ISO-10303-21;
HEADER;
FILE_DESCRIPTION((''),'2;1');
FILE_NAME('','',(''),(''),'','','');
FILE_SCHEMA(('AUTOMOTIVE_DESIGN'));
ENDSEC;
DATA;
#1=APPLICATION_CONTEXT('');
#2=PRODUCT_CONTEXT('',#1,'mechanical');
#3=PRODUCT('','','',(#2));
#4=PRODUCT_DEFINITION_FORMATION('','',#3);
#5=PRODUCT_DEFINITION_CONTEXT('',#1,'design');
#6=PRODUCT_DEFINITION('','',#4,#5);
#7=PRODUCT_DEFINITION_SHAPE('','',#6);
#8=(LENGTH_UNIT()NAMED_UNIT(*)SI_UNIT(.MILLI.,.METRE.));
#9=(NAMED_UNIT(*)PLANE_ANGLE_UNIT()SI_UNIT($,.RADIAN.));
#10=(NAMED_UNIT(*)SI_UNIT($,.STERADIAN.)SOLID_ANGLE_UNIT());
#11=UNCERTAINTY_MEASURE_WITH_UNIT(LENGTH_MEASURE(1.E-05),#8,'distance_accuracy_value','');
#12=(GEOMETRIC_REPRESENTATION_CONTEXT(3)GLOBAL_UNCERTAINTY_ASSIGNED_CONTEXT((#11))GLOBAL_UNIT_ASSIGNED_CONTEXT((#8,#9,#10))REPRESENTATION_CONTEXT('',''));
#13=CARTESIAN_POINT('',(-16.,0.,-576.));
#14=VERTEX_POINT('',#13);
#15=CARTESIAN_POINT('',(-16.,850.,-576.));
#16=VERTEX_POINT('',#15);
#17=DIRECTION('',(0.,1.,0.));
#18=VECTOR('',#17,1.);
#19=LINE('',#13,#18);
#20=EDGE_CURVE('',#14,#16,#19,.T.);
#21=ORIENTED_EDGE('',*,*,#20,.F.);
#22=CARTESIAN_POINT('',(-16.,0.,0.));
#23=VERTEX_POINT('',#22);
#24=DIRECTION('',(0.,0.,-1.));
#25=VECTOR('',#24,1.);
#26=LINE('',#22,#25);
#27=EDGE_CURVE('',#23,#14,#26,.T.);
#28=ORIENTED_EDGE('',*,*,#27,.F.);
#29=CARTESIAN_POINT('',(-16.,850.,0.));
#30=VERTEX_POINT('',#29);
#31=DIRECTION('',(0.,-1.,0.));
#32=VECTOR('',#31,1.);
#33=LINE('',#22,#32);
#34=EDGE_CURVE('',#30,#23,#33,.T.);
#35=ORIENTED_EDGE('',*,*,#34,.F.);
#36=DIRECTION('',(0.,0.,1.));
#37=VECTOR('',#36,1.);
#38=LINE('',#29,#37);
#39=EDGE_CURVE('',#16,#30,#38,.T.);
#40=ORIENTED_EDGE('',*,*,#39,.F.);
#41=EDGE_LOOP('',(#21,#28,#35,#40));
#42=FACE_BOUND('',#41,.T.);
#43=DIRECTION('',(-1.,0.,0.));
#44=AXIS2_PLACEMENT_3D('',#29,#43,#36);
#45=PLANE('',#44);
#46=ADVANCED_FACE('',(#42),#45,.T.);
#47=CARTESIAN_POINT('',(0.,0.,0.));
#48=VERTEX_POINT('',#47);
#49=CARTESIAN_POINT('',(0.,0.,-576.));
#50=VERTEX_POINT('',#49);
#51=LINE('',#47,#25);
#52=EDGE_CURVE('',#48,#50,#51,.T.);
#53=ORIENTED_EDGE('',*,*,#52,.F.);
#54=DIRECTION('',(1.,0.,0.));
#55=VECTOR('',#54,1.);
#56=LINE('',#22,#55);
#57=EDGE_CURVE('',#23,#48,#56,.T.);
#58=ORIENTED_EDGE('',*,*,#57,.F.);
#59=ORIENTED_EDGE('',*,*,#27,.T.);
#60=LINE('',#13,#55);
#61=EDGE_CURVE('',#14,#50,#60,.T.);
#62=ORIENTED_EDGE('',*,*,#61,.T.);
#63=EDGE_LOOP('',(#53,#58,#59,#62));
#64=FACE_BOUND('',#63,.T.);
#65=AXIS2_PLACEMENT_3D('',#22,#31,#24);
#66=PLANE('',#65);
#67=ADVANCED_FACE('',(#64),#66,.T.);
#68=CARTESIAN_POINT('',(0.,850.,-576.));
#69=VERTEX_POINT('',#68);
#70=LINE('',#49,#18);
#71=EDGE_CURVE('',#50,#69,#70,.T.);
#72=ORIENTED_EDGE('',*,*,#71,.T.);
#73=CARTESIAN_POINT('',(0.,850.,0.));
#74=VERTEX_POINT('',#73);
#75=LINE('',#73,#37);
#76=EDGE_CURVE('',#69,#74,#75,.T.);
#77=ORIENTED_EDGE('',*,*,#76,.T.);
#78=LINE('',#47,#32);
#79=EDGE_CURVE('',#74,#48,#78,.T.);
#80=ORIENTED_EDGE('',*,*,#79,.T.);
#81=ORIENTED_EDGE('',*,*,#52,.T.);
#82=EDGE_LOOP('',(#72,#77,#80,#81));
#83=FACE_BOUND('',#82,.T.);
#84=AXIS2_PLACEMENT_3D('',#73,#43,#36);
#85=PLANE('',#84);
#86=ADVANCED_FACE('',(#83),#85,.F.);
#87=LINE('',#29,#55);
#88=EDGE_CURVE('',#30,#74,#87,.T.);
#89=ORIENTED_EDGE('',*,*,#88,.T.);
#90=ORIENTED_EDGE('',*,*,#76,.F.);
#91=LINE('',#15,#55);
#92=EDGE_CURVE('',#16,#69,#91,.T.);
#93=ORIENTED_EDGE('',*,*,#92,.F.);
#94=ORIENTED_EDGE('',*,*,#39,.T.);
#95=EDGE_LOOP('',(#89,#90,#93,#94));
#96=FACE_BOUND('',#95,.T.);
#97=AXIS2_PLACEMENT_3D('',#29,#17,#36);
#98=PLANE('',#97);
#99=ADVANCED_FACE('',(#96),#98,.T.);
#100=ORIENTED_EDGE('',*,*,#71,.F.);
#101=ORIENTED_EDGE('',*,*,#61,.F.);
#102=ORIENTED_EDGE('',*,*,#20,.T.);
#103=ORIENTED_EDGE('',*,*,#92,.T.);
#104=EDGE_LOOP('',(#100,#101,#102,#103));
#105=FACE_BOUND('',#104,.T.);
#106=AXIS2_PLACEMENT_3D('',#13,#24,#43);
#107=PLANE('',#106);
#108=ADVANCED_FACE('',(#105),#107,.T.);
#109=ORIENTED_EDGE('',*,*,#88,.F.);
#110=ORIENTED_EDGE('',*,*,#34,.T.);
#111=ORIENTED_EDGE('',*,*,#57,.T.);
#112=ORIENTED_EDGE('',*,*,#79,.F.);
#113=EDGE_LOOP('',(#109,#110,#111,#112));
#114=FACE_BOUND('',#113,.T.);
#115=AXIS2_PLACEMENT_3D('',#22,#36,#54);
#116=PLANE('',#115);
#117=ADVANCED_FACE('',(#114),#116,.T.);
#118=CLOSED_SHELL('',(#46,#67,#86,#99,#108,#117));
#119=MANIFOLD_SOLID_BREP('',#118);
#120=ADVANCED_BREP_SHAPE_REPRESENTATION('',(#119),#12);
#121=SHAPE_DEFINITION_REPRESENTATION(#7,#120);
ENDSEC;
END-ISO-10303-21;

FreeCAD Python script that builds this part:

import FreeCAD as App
import Part
import Sketcher
from FreeCAD import Vector
Q = App.Units.Quantity

doc = App.newDocument("Part")
body = doc.addObject("PartDesign::Body", "Body")

# Sketch on YZ plane
sketch1 = body.newObject("Sketcher::SketchObject", "Sketch")
sketch1.AttachmentSupport = (doc.getObject("YZ_Plane"), [""])
sketch1.MapMode = "FlatFace"
sketch1.addGeometry([
    Part.LineSegment(Vector(850, 0, 0), Vector(0, 0, 0)),
    Part.LineSegment(Vector(0, 0, 0), Vector(0, -576, 0)),
    Part.LineSegment(Vector(0, -576, 0), Vector(850, -576, 0)),
    Part.LineSegment(Vector(850, -576, 0), Vector(850, 0, 0)),
], False)
sketch1.addConstraint([
    Sketcher.Constraint("Coincident", 0, 2, 1, 1),
    Sketcher.Constraint("Coincident", 1, 2, 2, 1),
    Sketcher.Constraint("Coincident", 2, 2, 3, 1),
    Sketcher.Constraint("Coincident", 3, 2, 0, 1),
    Sketcher.Constraint("Horizontal", 0),
    Sketcher.Constraint("Vertical", 1),
    Sketcher.Constraint("Horizontal", 2),
    Sketcher.Constraint("Vertical", 3),
    Sketcher.Constraint("Coincident", 0, 2, -1, 1),
    Sketcher.Constraint("DistanceX", 0, 2, 0, 1, Q("850 mm")),
    Sketcher.Constraint("DistanceY", 1, 2, 1, 1, Q("576 mm")),
])
pad1 = body.newObject("PartDesign::Pad", "Pad")
pad1.Profile = sketch1
pad1.Length = 16
pad1.Reversed = True

doc.recompute()
